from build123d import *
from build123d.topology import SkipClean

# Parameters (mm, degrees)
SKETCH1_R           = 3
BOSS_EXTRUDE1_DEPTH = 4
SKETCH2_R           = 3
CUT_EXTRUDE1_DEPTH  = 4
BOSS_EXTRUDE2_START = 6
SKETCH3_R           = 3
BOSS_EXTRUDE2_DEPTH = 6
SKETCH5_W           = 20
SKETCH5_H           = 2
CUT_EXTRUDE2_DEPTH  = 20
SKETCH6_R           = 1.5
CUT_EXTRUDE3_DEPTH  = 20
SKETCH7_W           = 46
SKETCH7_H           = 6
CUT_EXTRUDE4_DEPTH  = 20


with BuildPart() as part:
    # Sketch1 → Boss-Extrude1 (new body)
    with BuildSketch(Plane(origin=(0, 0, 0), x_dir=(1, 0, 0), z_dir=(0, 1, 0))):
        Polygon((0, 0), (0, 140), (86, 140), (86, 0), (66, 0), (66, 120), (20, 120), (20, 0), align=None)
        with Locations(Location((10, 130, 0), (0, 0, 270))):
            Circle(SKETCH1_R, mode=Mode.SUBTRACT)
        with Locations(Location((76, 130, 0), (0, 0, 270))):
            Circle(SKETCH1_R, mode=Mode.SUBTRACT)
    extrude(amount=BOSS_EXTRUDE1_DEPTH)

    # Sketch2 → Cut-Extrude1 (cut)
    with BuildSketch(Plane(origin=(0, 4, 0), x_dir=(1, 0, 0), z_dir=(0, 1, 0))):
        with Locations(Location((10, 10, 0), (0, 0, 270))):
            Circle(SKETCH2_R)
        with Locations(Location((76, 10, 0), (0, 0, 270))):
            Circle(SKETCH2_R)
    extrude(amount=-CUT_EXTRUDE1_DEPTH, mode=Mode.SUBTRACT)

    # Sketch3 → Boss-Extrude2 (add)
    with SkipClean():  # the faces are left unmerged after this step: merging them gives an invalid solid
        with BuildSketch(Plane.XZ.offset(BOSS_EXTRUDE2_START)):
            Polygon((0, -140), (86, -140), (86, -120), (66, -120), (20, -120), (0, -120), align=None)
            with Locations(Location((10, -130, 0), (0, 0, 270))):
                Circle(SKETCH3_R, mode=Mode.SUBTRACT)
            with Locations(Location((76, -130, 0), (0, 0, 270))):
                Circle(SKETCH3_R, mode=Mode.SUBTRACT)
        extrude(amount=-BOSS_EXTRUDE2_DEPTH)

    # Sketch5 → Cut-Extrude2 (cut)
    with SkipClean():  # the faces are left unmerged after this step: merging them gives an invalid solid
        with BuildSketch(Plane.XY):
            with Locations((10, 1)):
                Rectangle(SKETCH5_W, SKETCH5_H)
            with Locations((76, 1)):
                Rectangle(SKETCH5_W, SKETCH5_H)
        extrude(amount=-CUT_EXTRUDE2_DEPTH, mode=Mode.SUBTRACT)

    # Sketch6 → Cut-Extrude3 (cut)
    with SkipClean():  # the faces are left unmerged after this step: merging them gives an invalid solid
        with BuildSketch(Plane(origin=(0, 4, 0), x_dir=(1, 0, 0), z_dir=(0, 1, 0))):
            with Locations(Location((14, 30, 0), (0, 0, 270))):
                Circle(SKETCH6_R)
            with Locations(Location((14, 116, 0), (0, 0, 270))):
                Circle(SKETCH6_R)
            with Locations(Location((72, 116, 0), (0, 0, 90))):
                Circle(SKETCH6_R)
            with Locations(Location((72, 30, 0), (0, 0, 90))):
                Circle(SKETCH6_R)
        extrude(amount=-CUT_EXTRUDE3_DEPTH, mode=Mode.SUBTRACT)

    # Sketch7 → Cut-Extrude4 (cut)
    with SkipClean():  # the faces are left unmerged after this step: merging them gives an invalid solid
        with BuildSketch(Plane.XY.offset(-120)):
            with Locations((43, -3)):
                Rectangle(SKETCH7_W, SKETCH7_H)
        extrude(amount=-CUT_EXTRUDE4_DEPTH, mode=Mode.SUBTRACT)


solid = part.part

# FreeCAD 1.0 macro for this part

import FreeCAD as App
import Part
import Sketcher

V = App.Vector


def add_polygon(sketch, points):
    """Adds a closed chain of lines whose ends are joined by coincident constraints."""
    first, n = sketch.GeometryCount, len(points)
    for a, b in zip(points, points[1:] + points[:1]):
        sketch.addGeometry(Part.LineSegment(App.Vector(*a, 0), App.Vector(*b, 0)), False)
    for i in range(n):
        sketch.addConstraint(Sketcher.Constraint("Coincident", first + i, 2, first + (i + 1) % n, 1))

doc = App.newDocument("Part")
params = doc.addObject("Spreadsheet::Sheet", "Params")
for row, (alias, value) in enumerate([
    ("sketch1_diameter", "6 mm"),
    ("sketch1_width", "20 mm"),
    ("sketch1_width2", "46 mm"),
    ("sketch1_height", "140 mm"),
    ("sketch1_height2", "120 mm"),
    ("pad1_length", "4 mm"),
    ("sketch2_diameter", "6 mm"),
    ("pocket1_length", "4 mm"),
    ("sketch3_diameter", "6 mm"),
    ("sketch3_width", "86 mm"),
    ("sketch3_height", "20 mm"),
    ("pad2_length", "6 mm"),
    ("sketch4_width", "20 mm"),
    ("sketch4_height", "2 mm"),
    ("pocket2_length", "20 mm"),
    ("sketch5_diameter", "3 mm"),
    ("pocket3_length", "20 mm"),
    ("sketch6_width", "46 mm"),
    ("sketch6_height", "6 mm"),
    ("pocket4_length", "20 mm"),
], start=1):
    params.set(f"A{row}", alias)
    params.set(f"B{row}", "=" + value)
    params.setAlias(f"B{row}", alias)

body = doc.addObject("PartDesign::Body", "Body")

# Sketch on XZ plane
sketch1 = body.newObject("Sketcher::SketchObject", "Sketch")
sketch1.AttachmentSupport = (doc.getObject("XZ_Plane"), [""])
sketch1.MapMode = "FlatFace"
add_polygon(sketch1, [(0, -140), (0, 0), (20, 0), (20, -120), (66, -120), (66, 0), (86, 0), (86, -140)])  # lines 0-7
sketch1.addGeometry(Part.Circle(V(76, -130, 0), V(0, 0, 1), 3), False)  # 8
sketch1.addGeometry(Part.Circle(V(10, -130, 0), V(0, 0, 1), 3), False)  # 9
sketch1.addConstraint([
    Sketcher.Constraint("Vertical", 0),
    Sketcher.Constraint("Horizontal", 1),
    Sketcher.Constraint("Vertical", 2),
    Sketcher.Constraint("Horizontal", 3),
    Sketcher.Constraint("Vertical", 4),
    Sketcher.Constraint("Horizontal", 5),
    Sketcher.Constraint("Vertical", 6),
    Sketcher.Constraint("Horizontal", 7),
    Sketcher.Constraint("Coincident", 0, 2, -1, 1),
    Sketcher.Constraint("Equal", 8, 9),
    Sketcher.Constraint("PointOnObject", 4, 2, -1),
    Sketcher.Constraint("Horizontal", 8, 3, 9, 3),
    Sketcher.Constraint("Equal", 1, 5),
    Sketcher.Constraint("Diameter", 8, 6.0),
    Sketcher.Constraint("DistanceX", 1, 1, 1, 2, 20.0),
    Sketcher.Constraint("DistanceX", 3, 1, 3, 2, 46.0),
    Sketcher.Constraint("DistanceY", 0, 1, 0, 2, 140.0),
    Sketcher.Constraint("DistanceY", 2, 2, 2, 1, 120.0),
    Sketcher.Constraint("DistanceX", -1, 1, 8, 3, 76.0),
    Sketcher.Constraint("DistanceY", 8, 3, -1, 1, 130.0),
    Sketcher.Constraint("DistanceX", -1, 1, 9, 3, 10.0),
])
sketch1.setExpression("Constraints[21]", "Params.sketch1_diameter")
sketch1.setExpression("Constraints[22]", "Params.sketch1_width")
sketch1.setExpression("Constraints[23]", "Params.sketch1_width2")
sketch1.setExpression("Constraints[24]", "Params.sketch1_height")
sketch1.setExpression("Constraints[25]", "Params.sketch1_height2")
pad1 = body.newObject("PartDesign::Pad", "Pad")
pad1.Profile = sketch1
pad1.setExpression("Length", "Params.pad1_length")
pad1.Reversed = True

# Sketch on XZ plane
sketch2 = body.newObject("Sketcher::SketchObject", "Sketch001")
sketch2.AttachmentSupport = (doc.getObject("XZ_Plane"), [""])
sketch2.MapMode = "FlatFace"
sketch2.AttachmentOffset = App.Placement(V(0, 0, -4), App.Rotation())
sketch2.addGeometry([
    Part.Circle(V(10, -10, 0), V(0, 0, 1), 3),
    Part.Circle(V(76, -10, 0), V(0, 0, 1), 3),
], False)
sketch2.addConstraint([
    Sketcher.Constraint("Equal", 0, 1),
    Sketcher.Constraint("Horizontal", 0, 3, 1, 3),
    Sketcher.Constraint("Diameter", 0, 6.0),
    Sketcher.Constraint("DistanceX", -1, 1, 0, 3, 10.0),
    Sketcher.Constraint("DistanceY", 0, 3, -1, 1, 10.0),
    Sketcher.Constraint("DistanceX", -1, 1, 1, 3, 76.0),
])
sketch2.setExpression("Constraints[2]", "Params.sketch2_diameter")
pocket1 = body.newObject("PartDesign::Pocket", "Pocket")
pocket1.Profile = sketch2
pocket1.setExpression("Length", "Params.pocket1_length")
pocket1.Reversed = True

# Sketch on XZ plane
sketch3 = body.newObject("Sketcher::SketchObject", "Sketch002")
sketch3.AttachmentSupport = (doc.getObject("XZ_Plane"), [""])
sketch3.MapMode = "FlatFace"
sketch3.AttachmentOffset = App.Placement(V(0, 0, 6), App.Rotation())
add_polygon(sketch3, [(0, -140), (86, -140), (86, -120), (0, -120)])  # lines 0-3
sketch3.addGeometry(Part.Circle(V(10, -130, 0), V(0, 0, 1), 3), False)  # 4
sketch3.addGeometry(Part.Circle(V(76, -130, 0), V(0, 0, 1), 3), False)  # 5
sketch3.addConstraint([
    Sketcher.Constraint("Horizontal", 0),
    Sketcher.Constraint("Vertical", 1),
    Sketcher.Constraint("Horizontal", 2),
    Sketcher.Constraint("Vertical", 3),
    Sketcher.Constraint("Equal", 4, 5),
    Sketcher.Constraint("PointOnObject", 2, 2, -2),
    Sketcher.Constraint("Horizontal", 4, 3, 5, 3),
    Sketcher.Constraint("Diameter", 4, 6.0),
    Sketcher.Constraint("DistanceX", 0, 1, 0, 2, 86.0),
    Sketcher.Constraint("DistanceY", 1, 1, 1, 2, 20.0),
    Sketcher.Constraint("DistanceX", -1, 1, 4, 3, 10.0),
    Sketcher.Constraint("DistanceY", 4, 3, -1, 1, 130.0),
    Sketcher.Constraint("DistanceX", -1, 1, 5, 3, 76.0),
    Sketcher.Constraint("DistanceY", 0, 2, -1, 1, 140.0),
])
sketch3.setExpression("Constraints[11]", "Params.sketch3_diameter")
sketch3.setExpression("Constraints[12]", "Params.sketch3_width")
sketch3.setExpression("Constraints[13]", "Params.sketch3_height")
pad2 = body.newObject("PartDesign::Pad", "Pad001")
pad2.Profile = sketch3
pad2.setExpression("Length", "Params.pad2_length")
pad2.Reversed = True

# Sketch on XY plane
sketch4 = body.newObject("Sketcher::SketchObject", "Sketch003")
sketch4.AttachmentSupport = (doc.getObject("XY_Plane"), [""])
sketch4.MapMode = "FlatFace"
add_polygon(sketch4, [(0, 2), (0, 0), (20, 0), (20, 2)])  # lines 0-3
add_polygon(sketch4, [(66, 2), (66, 0), (86, 0), (86, 2)])  # lines 4-7
sketch4.addConstraint([
    Sketcher.Constraint("Vertical", 0),
    Sketcher.Constraint("Horizontal", 1),
    Sketcher.Constraint("Vertical", 2),
    Sketcher.Constraint("Horizontal", 3),
    Sketcher.Constraint("Vertical", 4),
    Sketcher.Constraint("Horizontal", 5),
    Sketcher.Constraint("Vertical", 6),
    Sketcher.Constraint("Horizontal", 7),
    Sketcher.Constraint("Coincident", 0, 2, -1, 1),
    Sketcher.Constraint("PointOnObject", 4, 2, -1),
    Sketcher.Constraint("Horizontal", 3, 2, 6, 2),
    Sketcher.Constraint("Equal", 3, 5),
    Sketcher.Constraint("DistanceX", 1, 1, 1, 2, 20.0),
    Sketcher.Constraint("DistanceY", 0, 2, 0, 1, 2.0),
    Sketcher.Constraint("DistanceX", -1, 1, 4, 2, 66.0),
])
sketch4.setExpression("Constraints[20]", "Params.sketch4_width")
sketch4.setExpression("Constraints[21]", "Params.sketch4_height")
pocket2 = body.newObject("PartDesign::Pocket", "Pocket001")
pocket2.Profile = sketch4
pocket2.setExpression("Length", "Params.pocket2_length")

# Sketch on XZ plane
sketch5 = body.newObject("Sketcher::SketchObject", "Sketch004")
sketch5.AttachmentSupport = (doc.getObject("XZ_Plane"), [""])
sketch5.MapMode = "FlatFace"
sketch5.AttachmentOffset = App.Placement(V(0, 0, -4), App.Rotation())
sketch5.addGeometry([
    Part.Circle(V(14, -30, 0), V(0, 0, 1), 1.5),
    Part.Circle(V(14, -116, 0), V(0, 0, 1), 1.5),
    Part.Circle(V(72, -116, 0), V(0, 0, 1), 1.5),
    Part.Circle(V(72, -30, 0), V(0, 0, 1), 1.5),
], False)
sketch5.addConstraint([
    Sketcher.Constraint("Equal", 0, 1),
    Sketcher.Constraint("Equal", 1, 2),
    Sketcher.Constraint("Equal", 2, 3),
    Sketcher.Constraint("Horizontal", 1, 3, 2, 3),
    Sketcher.Constraint("Horizontal", 0, 3, 3, 3),
    Sketcher.Constraint("Vertical", 0, 3, 1, 3),
    Sketcher.Constraint("Vertical", 2, 3, 3, 3),
    Sketcher.Constraint("Diameter", 0, 3.0),
    Sketcher.Constraint("DistanceX", -1, 1, 0, 3, 14.0),
    Sketcher.Constraint("DistanceY", 0, 3, -1, 1, 30.0),
    Sketcher.Constraint("DistanceY", 1, 3, -1, 1, 116.0),
    Sketcher.Constraint("DistanceX", -1, 1, 2, 3, 72.0),
])
sketch5.setExpression("Constraints[7]", "Params.sketch5_diameter")
pocket3 = body.newObject("PartDesign::Pocket", "Pocket002")
pocket3.Profile = sketch5
pocket3.setExpression("Length", "Params.pocket3_length")
pocket3.Reversed = True

# Sketch on XY plane
sketch6 = body.newObject("Sketcher::SketchObject", "Sketch005")
sketch6.AttachmentSupport = (doc.getObject("XY_Plane"), [""])
sketch6.MapMode = "FlatFace"
sketch6.AttachmentOffset = App.Placement(V(0, 0, -120), App.Rotation())
add_polygon(sketch6, [(20, 0), (20, -6), (66, -6), (66, 0)])  # lines 0-3
sketch6.addConstraint([
    Sketcher.Constraint("Vertical", 0),
    Sketcher.Constraint("Horizontal", 1),
    Sketcher.Constraint("Vertical", 2),
    Sketcher.Constraint("Horizontal", 3),
    Sketcher.Constraint("PointOnObject", 2, 2, -1),
    Sketcher.Constraint("DistanceX", 1, 1, 1, 2, 46.0),
    Sketcher.Constraint("DistanceY", 0, 2, 0, 1, 6.0),
    Sketcher.Constraint("DistanceX", -1, 1, 0, 2, 20.0),
])
sketch6.setExpression("Constraints[9]", "Params.sketch6_width")
sketch6.setExpression("Constraints[10]", "Params.sketch6_height")
pocket4 = body.newObject("PartDesign::Pocket", "Pocket003")
pocket4.Profile = sketch6
pocket4.setExpression("Length", "Params.pocket4_length")

doc.recompute()
